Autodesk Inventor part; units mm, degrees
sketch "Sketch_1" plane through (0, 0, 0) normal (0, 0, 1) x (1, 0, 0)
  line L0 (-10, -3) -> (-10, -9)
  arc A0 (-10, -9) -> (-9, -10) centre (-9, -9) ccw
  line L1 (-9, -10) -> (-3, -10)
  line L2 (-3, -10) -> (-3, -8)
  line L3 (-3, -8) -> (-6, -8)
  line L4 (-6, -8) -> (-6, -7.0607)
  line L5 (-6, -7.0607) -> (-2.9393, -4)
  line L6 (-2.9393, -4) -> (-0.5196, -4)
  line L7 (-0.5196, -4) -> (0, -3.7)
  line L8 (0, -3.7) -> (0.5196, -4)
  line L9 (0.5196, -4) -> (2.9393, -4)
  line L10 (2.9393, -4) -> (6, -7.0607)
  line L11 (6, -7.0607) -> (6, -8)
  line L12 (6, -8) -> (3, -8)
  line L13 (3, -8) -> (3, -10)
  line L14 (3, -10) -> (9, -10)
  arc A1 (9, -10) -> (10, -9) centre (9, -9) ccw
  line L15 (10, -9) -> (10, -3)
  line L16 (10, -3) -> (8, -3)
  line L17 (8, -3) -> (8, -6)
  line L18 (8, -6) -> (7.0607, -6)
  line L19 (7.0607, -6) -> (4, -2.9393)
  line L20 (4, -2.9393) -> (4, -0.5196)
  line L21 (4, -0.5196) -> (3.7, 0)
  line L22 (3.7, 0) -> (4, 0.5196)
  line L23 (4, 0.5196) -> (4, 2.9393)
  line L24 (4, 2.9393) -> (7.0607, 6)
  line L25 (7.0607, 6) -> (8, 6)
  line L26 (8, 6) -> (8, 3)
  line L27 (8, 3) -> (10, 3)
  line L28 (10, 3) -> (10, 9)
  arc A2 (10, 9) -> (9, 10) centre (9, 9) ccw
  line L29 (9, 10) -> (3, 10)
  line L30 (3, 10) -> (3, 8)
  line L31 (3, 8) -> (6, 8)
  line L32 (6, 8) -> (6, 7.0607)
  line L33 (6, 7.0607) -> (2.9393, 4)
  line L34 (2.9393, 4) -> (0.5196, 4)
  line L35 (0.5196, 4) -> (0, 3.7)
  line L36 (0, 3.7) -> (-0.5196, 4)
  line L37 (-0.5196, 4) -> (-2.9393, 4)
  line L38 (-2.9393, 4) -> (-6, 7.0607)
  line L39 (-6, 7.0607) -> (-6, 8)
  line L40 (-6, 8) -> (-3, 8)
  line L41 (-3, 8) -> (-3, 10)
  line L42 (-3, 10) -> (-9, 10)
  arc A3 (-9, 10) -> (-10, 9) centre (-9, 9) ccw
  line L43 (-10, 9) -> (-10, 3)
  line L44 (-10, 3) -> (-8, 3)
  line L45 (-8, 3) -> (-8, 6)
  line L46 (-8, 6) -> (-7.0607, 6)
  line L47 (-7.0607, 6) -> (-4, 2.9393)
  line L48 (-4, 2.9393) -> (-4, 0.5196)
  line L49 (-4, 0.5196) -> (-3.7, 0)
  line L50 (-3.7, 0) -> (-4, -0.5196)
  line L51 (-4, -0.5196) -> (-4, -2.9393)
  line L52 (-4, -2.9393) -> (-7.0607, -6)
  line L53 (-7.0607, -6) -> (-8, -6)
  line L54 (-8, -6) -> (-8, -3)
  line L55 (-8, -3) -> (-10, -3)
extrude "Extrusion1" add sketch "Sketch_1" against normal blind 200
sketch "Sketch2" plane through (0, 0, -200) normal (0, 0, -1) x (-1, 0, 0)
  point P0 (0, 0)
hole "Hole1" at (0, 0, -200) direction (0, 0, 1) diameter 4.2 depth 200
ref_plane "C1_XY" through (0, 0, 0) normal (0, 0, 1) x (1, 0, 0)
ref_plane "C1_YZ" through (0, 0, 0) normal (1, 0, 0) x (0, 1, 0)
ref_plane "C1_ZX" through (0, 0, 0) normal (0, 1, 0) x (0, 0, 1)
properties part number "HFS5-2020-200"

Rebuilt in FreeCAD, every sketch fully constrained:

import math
import FreeCAD as App
import Part
import Sketcher
Q = App.Units.Quantity

doc = App.newDocument("Part")
body = doc.addObject("PartDesign::Body", "Body")

sketch1 = body.newObject("Sketcher::SketchObject", "Sketch")
sketch1.AttachmentSupport = (doc.getObject("XY_Plane"), [""])
sketch1.MapMode = "FlatFace"
sketch1.addGeometry([
    Part.LineSegment(App.Vector(-8, -3, 0), App.Vector(-10, -3, 0)),
    Part.LineSegment(App.Vector(-10, -3, 0), App.Vector(-10, -9, 0)),
    Part.ArcOfCircle(Part.Circle(App.Vector(-9, -9, 0), App.Vector(0, 0, 1), 1), math.radians(180), math.radians(270)),
    Part.LineSegment(App.Vector(-9, -10, 0), App.Vector(-3, -10, 0)),
    Part.LineSegment(App.Vector(-3, -10, 0), App.Vector(-3, -8, 0)),
    Part.LineSegment(App.Vector(-3, -8, 0), App.Vector(-6, -8, 0)),
    Part.LineSegment(App.Vector(-6, -8, 0), App.Vector(-6, -7.0607, 0)),
    Part.LineSegment(App.Vector(-6, -7.0607, 0), App.Vector(-2.9393, -4, 0)),
    Part.LineSegment(App.Vector(-2.9393, -4, 0), App.Vector(-0.5196, -4, 0)),
    Part.LineSegment(App.Vector(-0.5196, -4, 0), App.Vector(0, -3.7, 0)),
    Part.LineSegment(App.Vector(0, -3.7, 0), App.Vector(0.5196, -4, 0)),
    Part.LineSegment(App.Vector(0.5196, -4, 0), App.Vector(2.9393, -4, 0)),
    Part.LineSegment(App.Vector(2.9393, -4, 0), App.Vector(6, -7.0607, 0)),
    Part.LineSegment(App.Vector(6, -7.0607, 0), App.Vector(6, -8, 0)),
    Part.LineSegment(App.Vector(6, -8, 0), App.Vector(3, -8, 0)),
    Part.LineSegment(App.Vector(3, -8, 0), App.Vector(3, -10, 0)),
    Part.LineSegment(App.Vector(3, -10, 0), App.Vector(9, -10, 0)),
    Part.ArcOfCircle(Part.Circle(App.Vector(9, -9, 0), App.Vector(0, 0, 1), 1), math.radians(-90), math.radians(0)),
    Part.LineSegment(App.Vector(10, -9, 0), App.Vector(10, -3, 0)),
    Part.LineSegment(App.Vector(10, -3, 0), App.Vector(8, -3, 0)),
    Part.LineSegment(App.Vector(8, -3, 0), App.Vector(8, -6, 0)),
    Part.LineSegment(App.Vector(8, -6, 0), App.Vector(7.0607, -6, 0)),
    Part.LineSegment(App.Vector(7.0607, -6, 0), App.Vector(4, -2.9393, 0)),
    Part.LineSegment(App.Vector(4, -2.9393, 0), App.Vector(4, -0.5196, 0)),
    Part.LineSegment(App.Vector(4, -0.5196, 0), App.Vector(3.7, 0, 0)),
    Part.LineSegment(App.Vector(3.7, 0, 0), App.Vector(4, 0.5196, 0)),
    Part.LineSegment(App.Vector(4, 0.5196, 0), App.Vector(4, 2.9393, 0)),
    Part.LineSegment(App.Vector(4, 2.9393, 0), App.Vector(7.0607, 6, 0)),
    Part.LineSegment(App.Vector(7.0607, 6, 0), App.Vector(8, 6, 0)),
    Part.LineSegment(App.Vector(8, 6, 0), App.Vector(8, 3, 0)),
    Part.LineSegment(App.Vector(8, 3, 0), App.Vector(10, 3, 0)),
    Part.LineSegment(App.Vector(10, 3, 0), App.Vector(10, 9, 0)),
    Part.ArcOfCircle(Part.Circle(App.Vector(9, 9, 0), App.Vector(0, 0, 1), 1), math.radians(0), math.radians(90)),
    Part.LineSegment(App.Vector(9, 10, 0), App.Vector(3, 10, 0)),
    Part.LineSegment(App.Vector(3, 10, 0), App.Vector(3, 8, 0)),
    Part.LineSegment(App.Vector(3, 8, 0), App.Vector(6, 8, 0)),
    Part.LineSegment(App.Vector(6, 8, 0), App.Vector(6, 7.0607, 0)),
    Part.LineSegment(App.Vector(6, 7.0607, 0), App.Vector(2.9393, 4, 0)),
    Part.LineSegment(App.Vector(2.9393, 4, 0), App.Vector(0.5196, 4, 0)),
    Part.LineSegment(App.Vector(0.5196, 4, 0), App.Vector(0, 3.7, 0)),
    Part.LineSegment(App.Vector(0, 3.7, 0), App.Vector(-0.5196, 4, 0)),
    Part.LineSegment(App.Vector(-0.5196, 4, 0), App.Vector(-2.9393, 4, 0)),
    Part.LineSegment(App.Vector(-2.9393, 4, 0), App.Vector(-6, 7.0607, 0)),
    Part.LineSegment(App.Vector(-6, 7.0607, 0), App.Vector(-6, 8, 0)),
    Part.LineSegment(App.Vector(-6, 8, 0), App.Vector(-3, 8, 0)),
    Part.LineSegment(App.Vector(-3, 8, 0), App.Vector(-3, 10, 0)),
    Part.LineSegment(App.Vector(-3, 10, 0), App.Vector(-9, 10, 0)),
    Part.ArcOfCircle(Part.Circle(App.Vector(-9, 9, 0), App.Vector(0, 0, 1), 1), math.radians(90), math.radians(180)),
    Part.LineSegment(App.Vector(-10, 9, 0), App.Vector(-10, 3, 0)),
    Part.LineSegment(App.Vector(-10, 3, 0), App.Vector(-8, 3, 0)),
    Part.LineSegment(App.Vector(-8, 3, 0), App.Vector(-8, 6, 0)),
    Part.LineSegment(App.Vector(-8, 6, 0), App.Vector(-7.0607, 6, 0)),
    Part.LineSegment(App.Vector(-7.0607, 6, 0), App.Vector(-4, 2.9393, 0)),
    Part.LineSegment(App.Vector(-4, 2.9393, 0), App.Vector(-4, 0.5196, 0)),
    Part.LineSegment(App.Vector(-4, 0.5196, 0), App.Vector(-3.7, 0, 0)),
    Part.LineSegment(App.Vector(-3.7, 0, 0), App.Vector(-4, -0.5196, 0)),
    Part.LineSegment(App.Vector(-4, -0.5196, 0), App.Vector(-4, -2.9393, 0)),
    Part.LineSegment(App.Vector(-4, -2.9393, 0), App.Vector(-7.0607, -6, 0)),
    Part.LineSegment(App.Vector(-7.0607, -6, 0), App.Vector(-8, -6, 0)),
    Part.LineSegment(App.Vector(-8, -6, 0), App.Vector(-8, -3, 0)),
], False)
sketch1.addConstraint([
    Sketcher.Constraint("Coincident", 0, 2, 1, 1),
    Sketcher.Constraint("Tangent", 1, 2, 2, 1),
    Sketcher.Constraint("Tangent", 2, 2, 3, 1),
    Sketcher.Constraint("Coincident", 3, 2, 4, 1),
    Sketcher.Constraint("Coincident", 4, 2, 5, 1),
    Sketcher.Constraint("Coincident", 5, 2, 6, 1),
    Sketcher.Constraint("Coincident", 6, 2, 7, 1),
    Sketcher.Constraint("Coincident", 7, 2, 8, 1),
    Sketcher.Constraint("Coincident", 8, 2, 9, 1),
    Sketcher.Constraint("Coincident", 9, 2, 10, 1),
    Sketcher.Constraint("Coincident", 10, 2, 11, 1),
    Sketcher.Constraint("Coincident", 11, 2, 12, 1),
    Sketcher.Constraint("Coincident", 12, 2, 13, 1),
    Sketcher.Constraint("Coincident", 13, 2, 14, 1),
    Sketcher.Constraint("Coincident", 14, 2, 15, 1),
    Sketcher.Constraint("Coincident", 15, 2, 16, 1),
    Sketcher.Constraint("Tangent", 16, 2, 17, 1),
    Sketcher.Constraint("Tangent", 17, 2, 18, 1),
    Sketcher.Constraint("Coincident", 18, 2, 19, 1),
    Sketcher.Constraint("Coincident", 19, 2, 20, 1),
    Sketcher.Constraint("Coincident", 20, 2, 21, 1),
    Sketcher.Constraint("Coincident", 21, 2, 22, 1),
    Sketcher.Constraint("Coincident", 22, 2, 23, 1),
    Sketcher.Constraint("Coincident", 23, 2, 24, 1),
    Sketcher.Constraint("Coincident", 24, 2, 25, 1),
    Sketcher.Constraint("Coincident", 25, 2, 26, 1),
    Sketcher.Constraint("Coincident", 26, 2, 27, 1),
    Sketcher.Constraint("Coincident", 27, 2, 28, 1),
    Sketcher.Constraint("Coincident", 28, 2, 29, 1),
    Sketcher.Constraint("Coincident", 29, 2, 30, 1),
    Sketcher.Constraint("Coincident", 30, 2, 31, 1),
    Sketcher.Constraint("Tangent", 31, 2, 32, 1),
    Sketcher.Constraint("Tangent", 32, 2, 33, 1),
    Sketcher.Constraint("Coincident", 33, 2, 34, 1),
    Sketcher.Constraint("Coincident", 34, 2, 35, 1),
    Sketcher.Constraint("Coincident", 35, 2, 36, 1),
    Sketcher.Constraint("Coincident", 36, 2, 37, 1),
    Sketcher.Constraint("Coincident", 37, 2, 38, 1),
    Sketcher.Constraint("Coincident", 38, 2, 39, 1),
    Sketcher.Constraint("Coincident", 39, 2, 40, 1),
    Sketcher.Constraint("Coincident", 40, 2, 41, 1),
    Sketcher.Constraint("Coincident", 41, 2, 42, 1),
    Sketcher.Constraint("Coincident", 42, 2, 43, 1),
    Sketcher.Constraint("Coincident", 43, 2, 44, 1),
    Sketcher.Constraint("Coincident", 44, 2, 45, 1),
    Sketcher.Constraint("Coincident", 45, 2, 46, 1),
    Sketcher.Constraint("Tangent", 46, 2, 47, 1),
    Sketcher.Constraint("Tangent", 47, 2, 48, 1),
    Sketcher.Constraint("Coincident", 48, 2, 49, 1),
    Sketcher.Constraint("Coincident", 49, 2, 50, 1),
    Sketcher.Constraint("Coincident", 50, 2, 51, 1),
    Sketcher.Constraint("Coincident", 51, 2, 52, 1),
    Sketcher.Constraint("Coincident", 52, 2, 53, 1),
    Sketcher.Constraint("Coincident", 53, 2, 54, 1),
    Sketcher.Constraint("Coincident", 54, 2, 55, 1),
    Sketcher.Constraint("Coincident", 55, 2, 56, 1),
    Sketcher.Constraint("Coincident", 56, 2, 57, 1),
    Sketcher.Constraint("Coincident", 57, 2, 58, 1),
    Sketcher.Constraint("Coincident", 58, 2, 59, 1),
    Sketcher.Constraint("Coincident", 59, 2, 0, 1),
    Sketcher.Constraint("Horizontal", 0),
    Sketcher.Constraint("Vertical", 1),
    Sketcher.Constraint("Horizontal", 3),
    Sketcher.Constraint("Vertical", 4),
    Sketcher.Constraint("Horizontal", 5),
    Sketcher.Constraint("Vertical", 6),
    Sketcher.Constraint("Horizontal", 8),
    Sketcher.Constraint("Horizontal", 11),
    Sketcher.Constraint("Vertical", 13),
    Sketcher.Constraint("Horizontal", 14),
    Sketcher.Constraint("Vertical", 15),
    Sketcher.Constraint("Horizontal", 16),
    Sketcher.Constraint("Vertical", 18),
    Sketcher.Constraint("Horizontal", 19),
    Sketcher.Constraint("Vertical", 20),
    Sketcher.Constraint("Horizontal", 21),
    Sketcher.Constraint("Vertical", 23),
    Sketcher.Constraint("Vertical", 26),
    Sketcher.Constraint("Horizontal", 28),
    Sketcher.Constraint("Vertical", 29),
    Sketcher.Constraint("Horizontal", 30),
    Sketcher.Constraint("Vertical", 31),
    Sketcher.Constraint("Horizontal", 33),
    Sketcher.Constraint("Vertical", 34),
    Sketcher.Constraint("Horizontal", 35),
    Sketcher.Constraint("Vertical", 36),
    Sketcher.Constraint("Horizontal", 38),
    Sketcher.Constraint("Horizontal", 41),
    Sketcher.Constraint("Vertical", 43),
    Sketcher.Constraint("Horizontal", 44),
    Sketcher.Constraint("Vertical", 45),
    Sketcher.Constraint("Horizontal", 46),
    Sketcher.Constraint("Vertical", 48),
    Sketcher.Constraint("Horizontal", 49),
    Sketcher.Constraint("Vertical", 50),
    Sketcher.Constraint("Horizontal", 51),
    Sketcher.Constraint("Vertical", 53),
    Sketcher.Constraint("Vertical", 56),
    Sketcher.Constraint("Horizontal", 58),
    Sketcher.Constraint("Vertical", 59),
    Sketcher.Constraint("Equal", 2, 17),
    Sketcher.Constraint("Equal", 17, 32),
    Sketcher.Constraint("Equal", 32, 47),
    Sketcher.Constraint("Symmetric", 2, 3, 32, 3, -1, 1),
    Sketcher.Constraint("Symmetric", 17, 3, 47, 3, -1, 1),
    Sketcher.Constraint("Symmetric", 4, 2, 34, 2, -1, 1),
    Sketcher.Constraint("Symmetric", 6, 2, 36, 2, -1, 1),
    Sketcher.Constraint("Symmetric", 7, 2, 37, 2, -1, 1),
    Sketcher.Constraint("Symmetric", 9, 2, 39, 2, -1, 1),
    Sketcher.Constraint("Symmetric", 10, 2, 40, 2, -1, 1),
    Sketcher.Constraint("Symmetric", 12, 2, 42, 2, -1, 1),
    Sketcher.Constraint("Symmetric", 14, 2, 44, 2, -1, 1),
    Sketcher.Constraint("Symmetric", 19, 2, 49, 2, -1, 1),
    Sketcher.Constraint("Symmetric", 21, 2, 51, 2, -1, 1),
    Sketcher.Constraint("Symmetric", 22, 2, 52, 2, -1, 1),
    Sketcher.Constraint("Symmetric", 24, 2, 54, 2, -1, 1),
    Sketcher.Constraint("Symmetric", 25, 2, 55, 2, -1, 1),
    Sketcher.Constraint("Symmetric", 27, 2, 57, 2, -1, 1),
    Sketcher.Constraint("Symmetric", 29, 2, 59, 2, -1, 1),
    Sketcher.Constraint("Symmetric", 2, 3, 17, 3, -2),
    Sketcher.Constraint("Symmetric", 8, 2, 10, 2, -2),
    Sketcher.Constraint("Symmetric", 6, 2, 12, 2, -2),
    Sketcher.Constraint("Symmetric", 4, 2, 14, 2, -2),
    Sketcher.Constraint("Symmetric", 29, 2, 49, 2, -2),
    Sketcher.Constraint("Symmetric", 27, 2, 51, 2, -2),
    Sketcher.Constraint("Symmetric", 26, 2, 52, 2, -2),
    Sketcher.Constraint("PointOnObject", 9, 2, -2),
    Sketcher.Constraint("PointOnObject", 24, 2, -1),
    Sketcher.Constraint("Perpendicular", 7, 12),
    Sketcher.Constraint("Parallel", 12, 22),
    Sketcher.Constraint("Perpendicular", 9, 24),
    Sketcher.Constraint("Perpendicular", 10, 25),
    Sketcher.Constraint("Perpendicular", 22, 27),
    Sketcher.Constraint("Perpendicular", 24, 39),
    Sketcher.Constraint("Perpendicular", 37, 42),
    Sketcher.Constraint("Perpendicular", 39, 54),
    Sketcher.Constraint("Perpendicular", 52, 57),
    Sketcher.Constraint("Equal", 46, 1),
    Sketcher.Constraint("Equal", 49, 4),
    Sketcher.Constraint("Equal", 58, 6),
    Sketcher.Constraint("Equal", 44, 20),
    Sketcher.Constraint("Equal", 41, 23),
    Sketcher.Constraint("Equal", 12, 22),
    Sketcher.Constraint("Equal", 10, 24),
    Sketcher.Constraint("Radius", 2, 1.0),
    Sketcher.Constraint("DistanceX", 0, 2, 0, 1, 2.0),
    Sketcher.Constraint("DistanceX", 3, 1, 3, 2, 6.0),
    Sketcher.Constraint("DistanceX", 5, 2, 5, 1, 3.0),
    Sketcher.Constraint("Angle", 9, Q("30.0007 deg")),
    Sketcher.Constraint("DistanceX", 2, 3, -1, 1, 9.0),
    Sketcher.Constraint("DistanceY", 7, 2, -1, 1, 4.0),
    Sketcher.Constraint("Distance", 9, 0.6),
    Sketcher.Constraint("DistanceX", 8, 1, 8, 2, 2.4197),
])
pad1 = body.newObject("PartDesign::Pad", "Pad")
pad1.Profile = sketch1
pad1.Length = 200
pad1.Reversed = True

sketch2 = body.newObject("Sketcher::SketchObject", "Sketch001")
sketch2.AttachmentSupport = (doc.getObject("XY_Plane"), [""])
sketch2.MapMode = "FlatFace"
sketch2.AttachmentOffset = App.Placement(App.Vector(0, 0, -200), App.Rotation())
sketch2.addGeometry(Part.Circle(App.Vector(0, 0, 0), App.Vector(0, 0, 1), 2.1), False)
sketch2.addConstraint([
    Sketcher.Constraint("Coincident", 0, 3, -1, 1),
    Sketcher.Constraint("Diameter", 0, 4.2),
])
doc.recompute()
hole = body.newObject("PartDesign::Hole", "Hole")
hole.Profile = sketch2
hole.ThreadType = "None"
hole.Diameter = 4.2
hole.DepthType = "Dimension"
hole.Depth = 200
hole.DrillPoint = "Flat"
hole.Reversed = True

doc.recompute()
